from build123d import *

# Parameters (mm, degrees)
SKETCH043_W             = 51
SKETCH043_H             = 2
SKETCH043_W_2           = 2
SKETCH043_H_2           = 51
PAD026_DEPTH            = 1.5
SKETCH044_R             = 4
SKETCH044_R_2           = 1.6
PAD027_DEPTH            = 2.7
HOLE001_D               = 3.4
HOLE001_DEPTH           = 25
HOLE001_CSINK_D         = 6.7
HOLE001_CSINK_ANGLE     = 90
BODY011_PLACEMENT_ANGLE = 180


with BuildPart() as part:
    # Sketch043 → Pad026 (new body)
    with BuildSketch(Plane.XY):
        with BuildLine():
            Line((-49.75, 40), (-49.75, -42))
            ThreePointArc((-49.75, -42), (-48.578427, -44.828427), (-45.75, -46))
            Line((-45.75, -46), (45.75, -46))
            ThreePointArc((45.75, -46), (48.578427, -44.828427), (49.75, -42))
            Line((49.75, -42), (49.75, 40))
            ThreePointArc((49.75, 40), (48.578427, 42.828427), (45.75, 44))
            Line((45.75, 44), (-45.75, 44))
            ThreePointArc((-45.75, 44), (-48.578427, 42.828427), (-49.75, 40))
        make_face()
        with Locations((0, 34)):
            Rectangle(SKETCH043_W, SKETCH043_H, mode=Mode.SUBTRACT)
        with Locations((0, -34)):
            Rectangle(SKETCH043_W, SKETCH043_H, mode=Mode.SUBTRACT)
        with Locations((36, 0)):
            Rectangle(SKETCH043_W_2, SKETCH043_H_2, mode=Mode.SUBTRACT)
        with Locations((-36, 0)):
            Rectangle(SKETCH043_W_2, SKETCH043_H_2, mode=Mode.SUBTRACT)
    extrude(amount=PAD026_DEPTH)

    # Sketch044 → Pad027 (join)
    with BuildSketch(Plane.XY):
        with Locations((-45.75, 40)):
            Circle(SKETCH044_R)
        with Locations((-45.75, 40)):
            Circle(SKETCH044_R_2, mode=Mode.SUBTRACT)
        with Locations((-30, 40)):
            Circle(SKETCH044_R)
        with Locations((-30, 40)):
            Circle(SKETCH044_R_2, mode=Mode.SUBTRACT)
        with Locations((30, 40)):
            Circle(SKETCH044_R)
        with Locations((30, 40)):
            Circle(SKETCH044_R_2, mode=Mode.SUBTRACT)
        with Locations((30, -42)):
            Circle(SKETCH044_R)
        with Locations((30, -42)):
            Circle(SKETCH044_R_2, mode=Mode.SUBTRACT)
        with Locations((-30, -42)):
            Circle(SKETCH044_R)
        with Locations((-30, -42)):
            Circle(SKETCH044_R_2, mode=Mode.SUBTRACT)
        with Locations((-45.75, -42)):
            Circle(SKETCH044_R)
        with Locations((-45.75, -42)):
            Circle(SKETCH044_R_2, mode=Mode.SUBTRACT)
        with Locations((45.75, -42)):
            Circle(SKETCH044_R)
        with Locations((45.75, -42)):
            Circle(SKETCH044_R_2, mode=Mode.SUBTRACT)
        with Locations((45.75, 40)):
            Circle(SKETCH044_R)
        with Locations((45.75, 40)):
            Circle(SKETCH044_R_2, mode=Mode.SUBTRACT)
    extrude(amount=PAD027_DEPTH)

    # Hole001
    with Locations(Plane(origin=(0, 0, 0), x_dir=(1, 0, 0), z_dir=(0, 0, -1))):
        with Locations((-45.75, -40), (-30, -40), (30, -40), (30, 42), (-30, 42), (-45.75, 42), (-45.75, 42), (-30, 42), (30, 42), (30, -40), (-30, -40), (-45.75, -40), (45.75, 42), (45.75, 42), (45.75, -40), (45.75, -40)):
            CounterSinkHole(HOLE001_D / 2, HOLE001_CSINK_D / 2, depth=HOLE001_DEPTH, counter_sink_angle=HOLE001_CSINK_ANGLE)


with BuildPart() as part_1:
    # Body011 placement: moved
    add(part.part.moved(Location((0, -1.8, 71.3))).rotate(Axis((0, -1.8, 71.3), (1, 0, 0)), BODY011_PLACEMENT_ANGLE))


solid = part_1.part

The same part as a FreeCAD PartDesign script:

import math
import FreeCAD as App
import Part
import Sketcher
from FreeCAD import Vector

doc = App.newDocument("Part")
body = doc.addObject("PartDesign::Body", "Body")

# Sketch on XY plane
sketch1 = body.newObject("Sketcher::SketchObject", "Sketch")
sketch1.AttachmentSupport = (doc.getObject("XY_Plane"), [""])
sketch1.MapMode = "FlatFace"
sketch1.addGeometry(Part.LineSegment(Vector(-49.8, 40, 0), Vector(-49.8, -42, 0)), False)
sketch1.addGeometry(Part.ArcOfCircle(Part.Circle(Vector(-45.7, -42, 0), Vector(0, 0, 1), 4), math.radians(-180), math.radians(-90)), False)
sketch1.addGeometry(Part.LineSegment(Vector(-45.8, -46, 0), Vector(45.8, -46, 0)), False)
sketch1.addGeometry(Part.ArcOfCircle(Part.Circle(Vector(45.7, -42, 0), Vector(0, 0, 1), 4), math.radians(-90), math.radians(0)), False)
sketch1.addGeometry(Part.LineSegment(Vector(49.8, -42, 0), Vector(49.8, 40, 0)), False)
sketch1.addGeometry(Part.ArcOfCircle(Part.Circle(Vector(45.7, 40, 0), Vector(0, 0, 1), 4), math.radians(0), math.radians(90)), False)
sketch1.addGeometry(Part.LineSegment(Vector(45.8, 44, 0), Vector(-45.8, 44, 0)), False)
sketch1.addGeometry(Part.ArcOfCircle(Part.Circle(Vector(-45.7, 40, 0), Vector(0, 0, 1), 4), math.radians(90), math.radians(180)), False)
sketch1.addGeometry(Part.LineSegment(Vector(25.5, -35, 0), Vector(-25.5, -35, 0)), False)
sketch1.addGeometry(Part.LineSegment(Vector(-25.5, -35, 0), Vector(-25.5, -33, 0)), False)
sketch1.addGeometry(Part.LineSegment(Vector(-25.5, -33, 0), Vector(25.5, -33, 0)), False)
sketch1.addGeometry(Part.LineSegment(Vector(25.5, -33, 0), Vector(25.5, -35, 0)), False)
sketch1.addGeometry(Part.LineSegment(Vector(-35, -25.5, 0), Vector(-37, -25.5, 0)), False)
sketch1.addGeometry(Part.LineSegment(Vector(-37, -25.5, 0), Vector(-37, 25.5, 0)), False)
sketch1.addGeometry(Part.LineSegment(Vector(-37, 25.5, 0), Vector(-35, 25.5, 0)), False)
sketch1.addGeometry(Part.LineSegment(Vector(-35, 25.5, 0), Vector(-35, -25.5, 0)), False)
sketch1.addGeometry(Part.LineSegment(Vector(37, -25.5, 0), Vector(35, -25.5, 0)), False)
sketch1.addGeometry(Part.LineSegment(Vector(35, -25.5, 0), Vector(35, 25.5, 0)), False)
sketch1.addGeometry(Part.LineSegment(Vector(35, 25.5, 0), Vector(37, 25.5, 0)), False)
sketch1.addGeometry(Part.LineSegment(Vector(37, 25.5, 0), Vector(37, -25.5, 0)), False)
sketch1.addGeometry(Part.LineSegment(Vector(25.5, 33, 0), Vector(-25.5, 33, 0)), False)
sketch1.addGeometry(Part.LineSegment(Vector(-25.5, 33, 0), Vector(-25.5, 35, 0)), False)
sketch1.addGeometry(Part.LineSegment(Vector(-25.5, 35, 0), Vector(25.5, 35, 0)), False)
sketch1.addGeometry(Part.LineSegment(Vector(25.5, 35, 0), Vector(25.5, 33, 0)), False)
sketch1.addConstraint(Sketcher.Constraint("Tangent", 0, 2, 1, 1))
sketch1.addConstraint(Sketcher.Constraint("Tangent", 1, 2, 2, 1))
sketch1.addConstraint(Sketcher.Constraint("Tangent", 2, 2, 3, 1))
sketch1.addConstraint(Sketcher.Constraint("Tangent", 3, 2, 4, 1))
sketch1.addConstraint(Sketcher.Constraint("Tangent", 4, 2, 5, 1))
sketch1.addConstraint(Sketcher.Constraint("Tangent", 5, 2, 6, 1))
sketch1.addConstraint(Sketcher.Constraint("Tangent", 6, 2, 7, 1))
sketch1.addConstraint(Sketcher.Constraint("Tangent", 7, 2, 0, 1))
sketch1.addConstraint(Sketcher.Constraint("Coincident", 8, 2, 9, 1))
sketch1.addConstraint(Sketcher.Constraint("Coincident", 9, 2, 10, 1))
sketch1.addConstraint(Sketcher.Constraint("Coincident", 10, 2, 11, 1))
sketch1.addConstraint(Sketcher.Constraint("Coincident", 11, 2, 8, 1))
sketch1.addConstraint(Sketcher.Constraint("Coincident", 12, 2, 13, 1))
sketch1.addConstraint(Sketcher.Constraint("Coincident", 13, 2, 14, 1))
sketch1.addConstraint(Sketcher.Constraint("Coincident", 14, 2, 15, 1))
sketch1.addConstraint(Sketcher.Constraint("Coincident", 15, 2, 12, 1))
sketch1.addConstraint(Sketcher.Constraint("Coincident", 16, 2, 17, 1))
sketch1.addConstraint(Sketcher.Constraint("Coincident", 17, 2, 18, 1))
sketch1.addConstraint(Sketcher.Constraint("Coincident", 18, 2, 19, 1))
sketch1.addConstraint(Sketcher.Constraint("Coincident", 19, 2, 16, 1))
sketch1.addConstraint(Sketcher.Constraint("Coincident", 20, 2, 21, 1))
sketch1.addConstraint(Sketcher.Constraint("Coincident", 21, 2, 22, 1))
sketch1.addConstraint(Sketcher.Constraint("Coincident", 22, 2, 23, 1))
sketch1.addConstraint(Sketcher.Constraint("Coincident", 23, 2, 20, 1))
sketch1.addConstraint(Sketcher.Constraint("Vertical", 0))
sketch1.addConstraint(Sketcher.Constraint("Horizontal", 2))
sketch1.addConstraint(Sketcher.Constraint("Vertical", 4))
sketch1.addConstraint(Sketcher.Constraint("Horizontal", 6))
sketch1.addConstraint(Sketcher.Constraint("Horizontal", 8))
sketch1.addConstraint(Sketcher.Constraint("Vertical", 9))
sketch1.addConstraint(Sketcher.Constraint("Horizontal", 10))
sketch1.addConstraint(Sketcher.Constraint("Vertical", 11))
sketch1.addConstraint(Sketcher.Constraint("Horizontal", 12))
sketch1.addConstraint(Sketcher.Constraint("Vertical", 13))
sketch1.addConstraint(Sketcher.Constraint("Horizontal", 14))
sketch1.addConstraint(Sketcher.Constraint("Vertical", 15))
sketch1.addConstraint(Sketcher.Constraint("Horizontal", 16))
sketch1.addConstraint(Sketcher.Constraint("Vertical", 17))
sketch1.addConstraint(Sketcher.Constraint("Horizontal", 18))
sketch1.addConstraint(Sketcher.Constraint("Vertical", 19))
sketch1.addConstraint(Sketcher.Constraint("Horizontal", 20))
sketch1.addConstraint(Sketcher.Constraint("Vertical", 21))
sketch1.addConstraint(Sketcher.Constraint("Horizontal", 22))
sketch1.addConstraint(Sketcher.Constraint("Vertical", 23))
sketch1.addConstraint(Sketcher.Constraint("Equal", 1, 3))
sketch1.addConstraint(Sketcher.Constraint("Equal", 3, 5))
sketch1.addConstraint(Sketcher.Constraint("Equal", 5, 7))
sketch1.addConstraint(Sketcher.Constraint("Symmetric", 14, 2, 16, 2, -1, 1))
sketch1.addConstraint(Sketcher.Constraint("Symmetric", 12, 2, 18, 2, -1, 1))
sketch1.addConstraint(Sketcher.Constraint("Symmetric", 10, 2, 20, 2, -1, 1))
sketch1.addConstraint(Sketcher.Constraint("Symmetric", 8, 2, 22, 2, -1, 1))
sketch1.addConstraint(Sketcher.Constraint("Horizontal", 15, 2, 16, 2))
sketch1.addConstraint(Sketcher.Constraint("Vertical", 9, 2, 20, 2))
sketch1.addConstraint(Sketcher.Constraint("Equal", 18, 9))
sketch1.addConstraint(Sketcher.Constraint("Equal", 22, 13))
sketch1.addConstraint(Sketcher.Constraint("Radius", 1, 4.0))
sketch1.addConstraint(Sketcher.Constraint("DistanceX", 8, 2, 8, 1, 51.0))
sketch1.addConstraint(Sketcher.Constraint("DistanceX", 12, 2, 12, 1, 2.0))
sketch1.addConstraint(Sketcher.Constraint("DistanceY", 0, 2, 0, 1, 82.0))
sketch1.addConstraint(Sketcher.Constraint("DistanceX", 2, 1, 2, 2, 91.5))
sketch1.addConstraint(Sketcher.Constraint("DistanceY", 1, 3, -1, 1, 42.0))
sketch1.addConstraint(Sketcher.Constraint("DistanceY", 8, 2, -1, 1, 35.0))
sketch1.addConstraint(Sketcher.Constraint("DistanceX", 12, 2, -1, 1, 37.0))
sketch1.addConstraint(Sketcher.Constraint("DistanceX", 1, 3, -1, 1, 45.75))
pad1 = body.newObject("PartDesign::Pad", "Pad")
pad1.Profile = sketch1
pad1.Length = 1.5

# Sketch on XY plane
sketch2 = body.newObject("Sketcher::SketchObject", "Sketch001")
sketch2.AttachmentSupport = (doc.getObject("XY_Plane"), [""])
sketch2.MapMode = "FlatFace"
sketch2.addGeometry(Part.Circle(Vector(-45.8, 40, 0), Vector(0, 0, 1), 4), False)
sketch2.addGeometry(Part.Circle(Vector(-45.8, 40, 0), Vector(0, 0, 1), 1.6), False)
sketch2.addGeometry(Part.Circle(Vector(-30, 40, 0), Vector(0, 0, 1), 4), False)
sketch2.addGeometry(Part.Circle(Vector(-30, 40, 0), Vector(0, 0, 1), 1.6), False)
sketch2.addGeometry(Part.Circle(Vector(30, 40, 0), Vector(0, 0, 1), 4), False)
sketch2.addGeometry(Part.Circle(Vector(30, 40, 0), Vector(0, 0, 1), 1.6), False)
sketch2.addGeometry(Part.Circle(Vector(30, -42, 0), Vector(0, 0, 1), 4), False)
sketch2.addGeometry(Part.Circle(Vector(30, -42, 0), Vector(0, 0, 1), 1.6), False)
sketch2.addGeometry(Part.Circle(Vector(-30, -42, 0), Vector(0, 0, 1), 4), False)
sketch2.addGeometry(Part.Circle(Vector(-30, -42, 0), Vector(0, 0, 1), 1.6), False)
sketch2.addGeometry(Part.Circle(Vector(-45.8, -42, 0), Vector(0, 0, 1), 4), False)
sketch2.addGeometry(Part.Circle(Vector(-45.8, -42, 0), Vector(0, 0, 1), 1.6), False)
sketch2.addGeometry(Part.Circle(Vector(45.8, -42, 0), Vector(0, 0, 1), 4), False)
sketch2.addGeometry(Part.Circle(Vector(45.8, -42, 0), Vector(0, 0, 1), 1.6), False)
sketch2.addGeometry(Part.Circle(Vector(45.8, 40, 0), Vector(0, 0, 1), 4), False)
sketch2.addGeometry(Part.Circle(Vector(45.8, 40, 0), Vector(0, 0, 1), 1.6), False)
sketch2.addConstraint(Sketcher.Constraint("Coincident", 1, 3, 0, 3))
sketch2.addConstraint(Sketcher.Constraint("Coincident", 3, 3, 2, 3))
sketch2.addConstraint(Sketcher.Constraint("Coincident", 5, 3, 4, 3))
sketch2.addConstraint(Sketcher.Constraint("Coincident", 7, 3, 6, 3))
sketch2.addConstraint(Sketcher.Constraint("Coincident", 9, 3, 8, 3))
sketch2.addConstraint(Sketcher.Constraint("Coincident", 11, 3, 10, 3))
sketch2.addConstraint(Sketcher.Constraint("Coincident", 13, 3, 12, 3))
sketch2.addConstraint(Sketcher.Constraint("Coincident", 15, 3, 14, 3))
sketch2.addConstraint(Sketcher.Constraint("Equal", 0, 2))
sketch2.addConstraint(Sketcher.Constraint("Equal", 1, 3))
sketch2.addConstraint(Sketcher.Constraint("Equal", 2, 4))
sketch2.addConstraint(Sketcher.Constraint("Equal", 3, 5))
sketch2.addConstraint(Sketcher.Constraint("Equal", 4, 6))
sketch2.addConstraint(Sketcher.Constraint("Equal", 5, 7))
sketch2.addConstraint(Sketcher.Constraint("Equal", 6, 8))
sketch2.addConstraint(Sketcher.Constraint("Equal", 7, 9))
sketch2.addConstraint(Sketcher.Constraint("Equal", 8, 10))
sketch2.addConstraint(Sketcher.Constraint("Equal", 9, 11))
sketch2.addConstraint(Sketcher.Constraint("Equal", 10, 12))
sketch2.addConstraint(Sketcher.Constraint("Equal", 11, 13))
sketch2.addConstraint(Sketcher.Constraint("Equal", 12, 14))
sketch2.addConstraint(Sketcher.Constraint("Equal", 13, 15))
sketch2.addConstraint(Sketcher.Constraint("Symmetric", 2, 3, 4, 3, -2))
sketch2.addConstraint(Sketcher.Constraint("Symmetric", 6, 3, 8, 3, -2))
sketch2.addConstraint(Sketcher.Constraint("Symmetric", 10, 3, 12, 3, -2))
sketch2.addConstraint(Sketcher.Constraint("Symmetric", 0, 3, 14, 3, -2))
sketch2.addConstraint(Sketcher.Constraint("Horizontal", 1, 3, 2, 3))
sketch2.addConstraint(Sketcher.Constraint("Horizontal", 9, 3, 10, 3))
sketch2.addConstraint(Sketcher.Constraint("Vertical", 5, 3, 6, 3))
sketch2.addConstraint(Sketcher.Constraint("Vertical", 1, 3, 10, 3))
sketch2.addConstraint(Sketcher.Constraint("Diameter", 0, 8.0))
sketch2.addConstraint(Sketcher.Constraint("Diameter", 1, 3.2))
sketch2.addConstraint(Sketcher.Constraint("DistanceY", -1, 1, 0, 3, 40.0))
sketch2.addConstraint(Sketcher.Constraint("DistanceX", 2, 3, -1, 1, 30.0))
sketch2.addConstraint(Sketcher.Constraint("DistanceY", 6, 3, -1, 1, 42.0))
sketch2.addConstraint(Sketcher.Constraint("DistanceX", 0, 3, -1, 1, 45.75))
pad2 = body.newObject("PartDesign::Pad", "Pad001")
pad2.Profile = sketch2
pad2.Length = 2.7

# Sketch on XY plane
sketch3 = body.newObject("Sketcher::SketchObject", "Sketch002")
sketch3.AttachmentSupport = (doc.getObject("XY_Plane"), [""])
sketch3.MapMode = "FlatFace"
sketch3.addGeometry(Part.Circle(Vector(-45.8, 40, 0), Vector(0, 0, 1), 1.7), False)
sketch3.addGeometry(Part.Circle(Vector(-30, 40, 0), Vector(0, 0, 1), 1.7), False)
sketch3.addGeometry(Part.Circle(Vector(30, 40, 0), Vector(0, 0, 1), 1.7), False)
sketch3.addGeometry(Part.Circle(Vector(30, -42, 0), Vector(0, 0, 1), 1.7), False)
sketch3.addGeometry(Part.Circle(Vector(-30, -42, 0), Vector(0, 0, 1), 1.7), False)
sketch3.addGeometry(Part.Circle(Vector(-45.8, -42, 0), Vector(0, 0, 1), 1.7), False)
sketch3.addGeometry(Part.Circle(Vector(-45.8, -42, 0), Vector(0, 0, 1), 1.7), False)
sketch3.addGeometry(Part.Circle(Vector(-30, -42, 0), Vector(0, 0, 1), 1.7), False)
sketch3.addGeometry(Part.Circle(Vector(30, -42, 0), Vector(0, 0, 1), 1.7), False)
sketch3.addGeometry(Part.Circle(Vector(30, 40, 0), Vector(0, 0, 1), 1.7), False)
sketch3.addGeometry(Part.Circle(Vector(-30, 40, 0), Vector(0, 0, 1), 1.7), False)
sketch3.addGeometry(Part.Circle(Vector(-45.8, 40, 0), Vector(0, 0, 1), 1.7), False)
sketch3.addGeometry(Part.Circle(Vector(45.8, -42, 0), Vector(0, 0, 1), 1.7), False)
sketch3.addGeometry(Part.Circle(Vector(45.8, -42, 0), Vector(0, 0, 1), 1.7), False)
sketch3.addGeometry(Part.Circle(Vector(45.8, 40, 0), Vector(0, 0, 1), 1.7), False)
sketch3.addGeometry(Part.Circle(Vector(45.8, 40, 0), Vector(0, 0, 1), 1.7), False)
sketch3.addConstraint(Sketcher.Constraint("Coincident", 6, 3, 5, 3))
sketch3.addConstraint(Sketcher.Constraint("Coincident", 7, 3, 4, 3))
sketch3.addConstraint(Sketcher.Constraint("Coincident", 8, 3, 3, 3))
sketch3.addConstraint(Sketcher.Constraint("Coincident", 9, 3, 2, 3))
sketch3.addConstraint(Sketcher.Constraint("Coincident", 10, 3, 1, 3))
sketch3.addConstraint(Sketcher.Constraint("Coincident", 11, 3, 0, 3))
sketch3.addConstraint(Sketcher.Constraint("Coincident", 13, 3, 12, 3))
sketch3.addConstraint(Sketcher.Constraint("Coincident", 15, 3, 14, 3))
sketch3.addConstraint(Sketcher.Constraint("Equal", 0, 1))
sketch3.addConstraint(Sketcher.Constraint("Equal", 1, 2))
sketch3.addConstraint(Sketcher.Constraint("Equal", 2, 3))
sketch3.addConstraint(Sketcher.Constraint("Equal", 3, 4))
sketch3.addConstraint(Sketcher.Constraint("Equal", 4, 5))
sketch3.addConstraint(Sketcher.Constraint("Equal", 5, 6))
sketch3.addConstraint(Sketcher.Constraint("Equal", 6, 7))
sketch3.addConstraint(Sketcher.Constraint("Equal", 7, 8))
sketch3.addConstraint(Sketcher.Constraint("Equal", 8, 9))
sketch3.addConstraint(Sketcher.Constraint("Equal", 9, 10))
sketch3.addConstraint(Sketcher.Constraint("Equal", 10, 11))
sketch3.addConstraint(Sketcher.Constraint("Equal", 11, 12))
sketch3.addConstraint(Sketcher.Constraint("Equal", 12, 13))
sketch3.addConstraint(Sketcher.Constraint("Equal", 13, 14))
sketch3.addConstraint(Sketcher.Constraint("Equal", 14, 15))
sketch3.addConstraint(Sketcher.Constraint("Symmetric", 1, 3, 2, 3, -2))
sketch3.addConstraint(Sketcher.Constraint("Symmetric", 3, 3, 4, 3, -2))
sketch3.addConstraint(Sketcher.Constraint("Symmetric", 5, 3, 12, 3, -2))
sketch3.addConstraint(Sketcher.Constraint("Symmetric", 0, 3, 14, 3, -2))
sketch3.addConstraint(Sketcher.Constraint("Horizontal", 0, 3, 1, 3))
sketch3.addConstraint(Sketcher.Constraint("Horizontal", 4, 3, 5, 3))
sketch3.addConstraint(Sketcher.Constraint("Vertical", 2, 3, 3, 3))
sketch3.addConstraint(Sketcher.Constraint("Vertical", 0, 3, 5, 3))
sketch3.addConstraint(Sketcher.Constraint("Diameter", 0, 3.4))
sketch3.addConstraint(Sketcher.Constraint("DistanceY", -1, 1, 0, 3, 40.0))
sketch3.addConstraint(Sketcher.Constraint("DistanceX", 1, 3, -1, 1, 30.0))
sketch3.addConstraint(Sketcher.Constraint("DistanceY", 3, 3, -1, 1, 42.0))
sketch3.addConstraint(Sketcher.Constraint("DistanceX", 0, 3, -1, 1, 45.75))
doc.recompute()
hole = body.newObject("PartDesign::Hole", "Hole")
hole.Profile = sketch3
hole.ThreadType = "None"
hole.Diameter = 3.4
hole.DepthType = "Dimension"
hole.Depth = 25
hole.DrillPoint = "Flat"
hole.HoleCutType = "Countersink"
hole.HoleCutDiameter = 6.7
hole.HoleCutCountersinkAngle = 90
hole.Reversed = True
body2 = doc.addObject("PartDesign::Body", "Body001")
doc.recompute()

body.Placement = App.Placement(Vector(0, -1.8, 71.3), App.Rotation(Vector(1, 0, 0), 180))
boolean = body2.newObject("PartDesign::Boolean", "Boolean")
boolean.Type = "Fuse"
boolean.addObjects([body])

doc.recompute()
